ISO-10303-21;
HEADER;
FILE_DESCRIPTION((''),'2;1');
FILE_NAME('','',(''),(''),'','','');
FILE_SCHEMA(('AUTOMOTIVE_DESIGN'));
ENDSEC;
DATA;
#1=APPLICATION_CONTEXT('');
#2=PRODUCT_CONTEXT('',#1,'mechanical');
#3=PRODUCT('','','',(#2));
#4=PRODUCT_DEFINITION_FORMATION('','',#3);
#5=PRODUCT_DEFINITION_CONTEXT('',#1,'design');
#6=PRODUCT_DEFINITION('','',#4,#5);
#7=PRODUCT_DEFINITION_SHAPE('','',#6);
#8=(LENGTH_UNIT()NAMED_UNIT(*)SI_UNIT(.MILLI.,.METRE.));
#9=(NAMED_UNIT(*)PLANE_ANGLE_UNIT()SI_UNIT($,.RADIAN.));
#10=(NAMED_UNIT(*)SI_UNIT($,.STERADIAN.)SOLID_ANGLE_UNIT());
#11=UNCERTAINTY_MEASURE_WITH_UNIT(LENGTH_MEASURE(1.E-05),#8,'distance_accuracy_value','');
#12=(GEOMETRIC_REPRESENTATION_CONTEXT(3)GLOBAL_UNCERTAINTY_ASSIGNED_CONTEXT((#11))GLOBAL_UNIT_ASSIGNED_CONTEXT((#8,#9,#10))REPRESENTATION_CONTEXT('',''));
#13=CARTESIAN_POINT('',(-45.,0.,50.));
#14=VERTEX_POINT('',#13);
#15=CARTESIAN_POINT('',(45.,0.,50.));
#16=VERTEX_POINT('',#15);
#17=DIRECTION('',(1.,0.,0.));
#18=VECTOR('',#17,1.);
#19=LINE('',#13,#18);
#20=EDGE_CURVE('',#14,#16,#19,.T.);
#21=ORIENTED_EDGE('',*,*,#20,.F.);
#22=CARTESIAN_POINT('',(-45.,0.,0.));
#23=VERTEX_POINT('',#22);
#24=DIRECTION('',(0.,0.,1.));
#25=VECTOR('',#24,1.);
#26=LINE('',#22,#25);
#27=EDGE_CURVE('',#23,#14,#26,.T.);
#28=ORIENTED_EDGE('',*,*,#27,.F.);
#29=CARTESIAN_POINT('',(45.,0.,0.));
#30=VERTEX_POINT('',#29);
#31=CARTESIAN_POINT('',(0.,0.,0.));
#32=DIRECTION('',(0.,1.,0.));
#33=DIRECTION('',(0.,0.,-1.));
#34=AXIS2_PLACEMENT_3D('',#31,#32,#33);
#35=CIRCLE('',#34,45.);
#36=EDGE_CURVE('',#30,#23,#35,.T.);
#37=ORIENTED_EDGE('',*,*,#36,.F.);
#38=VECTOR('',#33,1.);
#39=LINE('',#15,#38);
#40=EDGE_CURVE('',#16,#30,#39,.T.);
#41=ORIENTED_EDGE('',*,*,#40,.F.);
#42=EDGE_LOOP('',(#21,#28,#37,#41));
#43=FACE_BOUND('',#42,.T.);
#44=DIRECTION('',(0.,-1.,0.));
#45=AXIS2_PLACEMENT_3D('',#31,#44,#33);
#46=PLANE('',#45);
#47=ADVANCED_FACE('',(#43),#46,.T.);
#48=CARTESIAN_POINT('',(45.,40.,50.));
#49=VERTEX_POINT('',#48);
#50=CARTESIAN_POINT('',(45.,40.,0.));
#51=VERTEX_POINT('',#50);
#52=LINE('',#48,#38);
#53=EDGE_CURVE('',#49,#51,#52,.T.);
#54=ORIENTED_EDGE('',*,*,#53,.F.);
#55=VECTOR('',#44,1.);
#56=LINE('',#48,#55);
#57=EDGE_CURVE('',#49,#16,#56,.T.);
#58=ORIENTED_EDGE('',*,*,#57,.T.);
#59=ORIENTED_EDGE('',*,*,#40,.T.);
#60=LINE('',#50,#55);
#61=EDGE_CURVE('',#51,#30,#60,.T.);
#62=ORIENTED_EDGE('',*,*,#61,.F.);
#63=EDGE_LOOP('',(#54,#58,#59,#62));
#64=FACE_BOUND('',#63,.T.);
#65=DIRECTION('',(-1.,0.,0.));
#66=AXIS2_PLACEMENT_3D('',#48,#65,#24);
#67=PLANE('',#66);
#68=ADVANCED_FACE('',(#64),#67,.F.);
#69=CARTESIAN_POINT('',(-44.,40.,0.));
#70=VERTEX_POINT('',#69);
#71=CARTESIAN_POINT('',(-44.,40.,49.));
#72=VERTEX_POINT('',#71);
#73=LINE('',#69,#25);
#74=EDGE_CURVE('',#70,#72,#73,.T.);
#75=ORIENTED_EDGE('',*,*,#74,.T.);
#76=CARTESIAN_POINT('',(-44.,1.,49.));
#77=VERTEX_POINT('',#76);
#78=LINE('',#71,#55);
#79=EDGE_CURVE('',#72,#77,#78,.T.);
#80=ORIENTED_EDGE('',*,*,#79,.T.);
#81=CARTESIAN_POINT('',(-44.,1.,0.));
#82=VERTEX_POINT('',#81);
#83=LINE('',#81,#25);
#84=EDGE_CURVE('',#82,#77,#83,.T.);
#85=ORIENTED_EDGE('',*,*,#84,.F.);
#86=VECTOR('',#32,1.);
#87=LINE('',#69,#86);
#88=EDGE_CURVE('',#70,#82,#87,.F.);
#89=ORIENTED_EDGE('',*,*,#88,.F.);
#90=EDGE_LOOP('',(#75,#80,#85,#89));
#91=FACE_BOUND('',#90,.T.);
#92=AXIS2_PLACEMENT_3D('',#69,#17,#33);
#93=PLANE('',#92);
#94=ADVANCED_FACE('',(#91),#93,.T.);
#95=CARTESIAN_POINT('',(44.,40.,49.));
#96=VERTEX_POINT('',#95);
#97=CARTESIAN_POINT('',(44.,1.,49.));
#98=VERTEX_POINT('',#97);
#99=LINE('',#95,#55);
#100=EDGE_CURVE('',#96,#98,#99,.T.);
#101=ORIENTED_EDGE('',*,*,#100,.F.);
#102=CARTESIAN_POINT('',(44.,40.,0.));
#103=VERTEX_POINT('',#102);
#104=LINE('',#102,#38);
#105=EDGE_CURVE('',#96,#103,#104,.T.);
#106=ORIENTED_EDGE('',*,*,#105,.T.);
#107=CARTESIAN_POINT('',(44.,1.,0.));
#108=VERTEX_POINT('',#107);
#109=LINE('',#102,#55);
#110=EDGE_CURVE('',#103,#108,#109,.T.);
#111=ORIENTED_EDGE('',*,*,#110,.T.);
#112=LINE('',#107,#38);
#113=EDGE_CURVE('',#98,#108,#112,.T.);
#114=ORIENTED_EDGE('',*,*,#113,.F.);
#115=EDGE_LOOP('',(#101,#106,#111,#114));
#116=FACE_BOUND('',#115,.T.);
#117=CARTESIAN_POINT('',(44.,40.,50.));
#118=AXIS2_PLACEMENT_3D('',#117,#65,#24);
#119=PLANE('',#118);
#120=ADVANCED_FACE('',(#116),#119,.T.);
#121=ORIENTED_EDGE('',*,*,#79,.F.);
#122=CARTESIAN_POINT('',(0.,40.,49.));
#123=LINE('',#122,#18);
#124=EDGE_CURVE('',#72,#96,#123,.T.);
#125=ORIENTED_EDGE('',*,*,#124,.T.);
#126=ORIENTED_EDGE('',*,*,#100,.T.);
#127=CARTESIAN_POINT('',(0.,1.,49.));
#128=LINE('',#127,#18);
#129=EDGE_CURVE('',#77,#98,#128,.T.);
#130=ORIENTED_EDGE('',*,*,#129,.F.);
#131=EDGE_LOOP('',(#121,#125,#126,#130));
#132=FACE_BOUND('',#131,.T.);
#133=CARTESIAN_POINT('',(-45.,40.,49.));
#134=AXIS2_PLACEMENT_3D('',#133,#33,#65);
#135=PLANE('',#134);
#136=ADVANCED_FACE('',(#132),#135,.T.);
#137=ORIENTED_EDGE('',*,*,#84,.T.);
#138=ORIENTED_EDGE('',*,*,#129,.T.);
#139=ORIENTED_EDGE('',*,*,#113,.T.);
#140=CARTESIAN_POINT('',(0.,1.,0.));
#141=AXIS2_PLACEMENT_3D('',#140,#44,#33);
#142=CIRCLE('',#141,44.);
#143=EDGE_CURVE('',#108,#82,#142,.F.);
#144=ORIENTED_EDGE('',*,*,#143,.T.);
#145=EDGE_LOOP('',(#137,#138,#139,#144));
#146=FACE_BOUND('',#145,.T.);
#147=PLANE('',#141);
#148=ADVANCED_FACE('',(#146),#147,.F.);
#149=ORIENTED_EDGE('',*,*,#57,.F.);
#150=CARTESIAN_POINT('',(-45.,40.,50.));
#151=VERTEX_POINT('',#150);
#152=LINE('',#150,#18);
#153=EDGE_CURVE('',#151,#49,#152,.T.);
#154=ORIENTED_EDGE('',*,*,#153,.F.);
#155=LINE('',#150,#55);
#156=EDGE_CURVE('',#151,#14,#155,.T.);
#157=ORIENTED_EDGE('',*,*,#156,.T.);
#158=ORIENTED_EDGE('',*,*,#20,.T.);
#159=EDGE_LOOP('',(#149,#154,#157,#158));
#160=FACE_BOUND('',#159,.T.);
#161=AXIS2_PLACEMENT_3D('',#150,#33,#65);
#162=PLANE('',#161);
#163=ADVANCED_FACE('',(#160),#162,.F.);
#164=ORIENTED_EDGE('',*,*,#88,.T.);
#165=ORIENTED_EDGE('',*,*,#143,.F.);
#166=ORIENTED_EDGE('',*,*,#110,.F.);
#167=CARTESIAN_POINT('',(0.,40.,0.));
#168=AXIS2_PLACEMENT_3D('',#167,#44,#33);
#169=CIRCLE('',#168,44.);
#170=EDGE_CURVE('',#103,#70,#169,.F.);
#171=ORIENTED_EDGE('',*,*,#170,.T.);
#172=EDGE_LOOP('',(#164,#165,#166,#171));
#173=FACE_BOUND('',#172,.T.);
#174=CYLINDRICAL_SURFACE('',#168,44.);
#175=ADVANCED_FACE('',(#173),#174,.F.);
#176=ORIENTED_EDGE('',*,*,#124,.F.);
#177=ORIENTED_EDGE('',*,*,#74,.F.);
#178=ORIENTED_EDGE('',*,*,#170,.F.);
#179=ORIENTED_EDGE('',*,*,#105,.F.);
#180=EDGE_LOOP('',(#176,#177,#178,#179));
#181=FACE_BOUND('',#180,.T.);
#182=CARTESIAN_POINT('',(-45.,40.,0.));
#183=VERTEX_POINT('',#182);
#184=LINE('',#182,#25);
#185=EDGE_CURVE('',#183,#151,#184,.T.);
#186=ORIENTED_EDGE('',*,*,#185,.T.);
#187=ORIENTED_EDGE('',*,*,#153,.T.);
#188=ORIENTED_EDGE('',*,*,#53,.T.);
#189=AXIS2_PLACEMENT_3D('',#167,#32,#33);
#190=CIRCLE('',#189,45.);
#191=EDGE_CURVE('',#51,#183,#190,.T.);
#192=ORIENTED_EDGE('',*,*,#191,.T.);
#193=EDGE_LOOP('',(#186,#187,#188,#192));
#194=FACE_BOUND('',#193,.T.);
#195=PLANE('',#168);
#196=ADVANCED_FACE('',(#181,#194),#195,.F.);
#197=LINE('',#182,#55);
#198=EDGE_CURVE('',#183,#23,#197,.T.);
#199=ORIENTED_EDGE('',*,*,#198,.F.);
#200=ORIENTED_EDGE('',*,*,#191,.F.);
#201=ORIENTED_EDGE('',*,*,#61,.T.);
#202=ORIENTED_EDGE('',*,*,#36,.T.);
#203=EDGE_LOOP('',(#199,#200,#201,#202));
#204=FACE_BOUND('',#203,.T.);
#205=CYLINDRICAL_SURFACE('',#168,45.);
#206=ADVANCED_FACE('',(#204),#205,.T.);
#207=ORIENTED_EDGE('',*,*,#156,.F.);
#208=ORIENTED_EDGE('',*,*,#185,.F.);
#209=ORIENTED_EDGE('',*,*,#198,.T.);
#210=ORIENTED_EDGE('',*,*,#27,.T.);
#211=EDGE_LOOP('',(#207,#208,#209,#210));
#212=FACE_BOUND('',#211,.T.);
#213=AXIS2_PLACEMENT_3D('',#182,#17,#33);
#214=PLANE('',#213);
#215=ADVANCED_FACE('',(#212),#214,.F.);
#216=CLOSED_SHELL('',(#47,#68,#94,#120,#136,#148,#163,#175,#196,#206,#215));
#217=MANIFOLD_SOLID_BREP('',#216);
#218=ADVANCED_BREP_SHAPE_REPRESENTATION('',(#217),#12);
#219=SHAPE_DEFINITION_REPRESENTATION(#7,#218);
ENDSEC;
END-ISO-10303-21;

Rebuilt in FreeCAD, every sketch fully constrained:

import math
import FreeCAD as App
import Part
import Sketcher

V = App.Vector
Q = App.Units.Quantity


def faces_at(feature, points):
    """Names of the faces that lie closest to the given points."""
    faces = feature.Shape.Faces
    near = lambda p: min(range(len(faces)), key=lambda i: faces[i].distToShape(Part.Vertex(*p))[0])
    return sorted({f"Face{near(p) + 1}" for p in points})

doc = App.newDocument("Part")
params = doc.addObject("Spreadsheet::Sheet", "Params")
for row, (alias, value) in enumerate([
    ("sketch1_radius", "45 mm"),
    ("sketch1_height", "50 mm"),
    ("pad1_length", "40 mm"),
    ("thickness_wall", "1 mm"),
], start=1):
    params.set(f"A{row}", alias)
    params.set(f"B{row}", "=" + value)
    params.setAlias(f"B{row}", alias)

body = doc.addObject("PartDesign::Body", "Body")

# Sketch on XZ plane
sketch1 = doc.addObject("Sketcher::SketchObject", "Sketch")
body.addObject(sketch1)
sketch1.AttachmentSupport = (doc.XZ_Plane, [""])
sketch1.MapMode = "FlatFace"
sketch1.addGeometry([
    Part.LineSegment(V(-45, 0, 0), V(-45, 50, 0)),
    Part.LineSegment(V(-45, 50, 0), V(45, 50, 0)),
    Part.LineSegment(V(45, 50, 0), V(45, 0, 0)),
    Part.ArcOfCircle(Part.Circle(V(0, 0, 0), V(0, 0, 1), 45), math.radians(180), math.radians(360)),
], False)
sketch1.addConstraint([
    Sketcher.Constraint("Coincident", 0, 2, 1, 1),
    Sketcher.Constraint("Coincident", 1, 2, 2, 1),
    Sketcher.Constraint("Tangent", 2, 2, 3, 2),
    Sketcher.Constraint("Tangent", 3, 1, 0, 1),
    Sketcher.Constraint("Vertical", 0),
    Sketcher.Constraint("Horizontal", 1),
    Sketcher.Constraint("Vertical", 2),
    Sketcher.Constraint("Coincident", 3, 3, -1, 1),
    Sketcher.Constraint("Radius", 3, Q("45 mm")),
    Sketcher.Constraint("DistanceY", 0, 1, 0, 2, Q("50 mm")),
])
sketch1.setExpression("Constraints[8]", "Params.sketch1_radius")
sketch1.setExpression("Constraints[9]", "Params.sketch1_height")
pad1 = doc.addObject("PartDesign::Pad", "Pad")
body.addObject(pad1)
pad1.Profile = sketch1
pad1.setExpression("Length", "Params.pad1_length")
pad1.Reversed = True
doc.recompute()

thickness = doc.addObject("PartDesign::Thickness", "Thickness")
body.addObject(thickness)
thickness.Base = (pad1, faces_at(pad1, [(0, 40, 2.5)]))
thickness.setExpression("Value", "Params.thickness_wall")
thickness.Reversed = True
thickness.Join = "Intersection"

doc.recompute()
